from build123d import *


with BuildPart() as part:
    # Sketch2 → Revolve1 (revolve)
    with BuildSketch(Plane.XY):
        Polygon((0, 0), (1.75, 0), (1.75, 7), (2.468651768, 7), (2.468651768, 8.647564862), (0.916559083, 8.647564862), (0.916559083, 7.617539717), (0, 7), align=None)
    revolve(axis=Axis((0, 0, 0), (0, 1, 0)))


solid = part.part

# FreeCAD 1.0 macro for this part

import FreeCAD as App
import Part
import Sketcher
Q = App.Units.Quantity


def add_polygon(sketch, points):
    """Adds a closed chain of lines whose ends are joined by coincident constraints."""
    first, n = sketch.GeometryCount, len(points)
    for a, b in zip(points, points[1:] + points[:1]):
        sketch.addGeometry(Part.LineSegment(App.Vector(*a, 0), App.Vector(*b, 0)), False)
    for i in range(n):
        sketch.addConstraint(Sketcher.Constraint("Coincident", first + i, 2, first + (i + 1) % n, 1))

doc = App.newDocument("Part")
body = doc.addObject("PartDesign::Body", "Body")

# Sketch on XY plane
sketch1 = body.newObject("Sketcher::SketchObject", "Sketch")
sketch1.AttachmentSupport = (doc.getObject("XY_Plane"), [""])
sketch1.MapMode = "FlatFace"
add_polygon(sketch1, [(0, 0), (1.8, 0), (1.8, 7), (2.5, 7), (2.5, 8.6), (0.9, 8.6), (0.9, 7.6), (0, 7)])  # lines 0-7
sketch1.addConstraint([
    Sketcher.Constraint("Horizontal", 0),
    Sketcher.Constraint("Vertical", 1),
    Sketcher.Constraint("Horizontal", 2),
    Sketcher.Constraint("Vertical", 3),
    Sketcher.Constraint("Horizontal", 4),
    Sketcher.Constraint("Vertical", 5),
    Sketcher.Constraint("Vertical", 7),
    Sketcher.Constraint("Coincident", 7, 2, -1, 1),
    Sketcher.Constraint("Horizontal", 2, 2, 6, 2),
    Sketcher.Constraint("DistanceY", 1, 1, 1, 2, Q("7 mm")),
    Sketcher.Constraint("DistanceX", 0, 1, 0, 2, Q("1.75 mm")),
    Sketcher.Constraint("DistanceX", 2, 1, 2, 2, Q("0.718652 mm")),
    Sketcher.Constraint("DistanceX", 4, 2, 4, 1, Q("1.552093 mm")),
    Sketcher.Constraint("DistanceY", 3, 1, 3, 2, Q("1.647565 mm")),
    Sketcher.Constraint("DistanceY", 5, 2, 5, 1, Q("1.030025 mm")),
])
revolution = body.newObject("PartDesign::Revolution", "Revolution")
revolution.Profile = sketch1
revolution.ReferenceAxis = (sketch1, ["V_Axis"])
revolution.Angle = 360

doc.recompute()
